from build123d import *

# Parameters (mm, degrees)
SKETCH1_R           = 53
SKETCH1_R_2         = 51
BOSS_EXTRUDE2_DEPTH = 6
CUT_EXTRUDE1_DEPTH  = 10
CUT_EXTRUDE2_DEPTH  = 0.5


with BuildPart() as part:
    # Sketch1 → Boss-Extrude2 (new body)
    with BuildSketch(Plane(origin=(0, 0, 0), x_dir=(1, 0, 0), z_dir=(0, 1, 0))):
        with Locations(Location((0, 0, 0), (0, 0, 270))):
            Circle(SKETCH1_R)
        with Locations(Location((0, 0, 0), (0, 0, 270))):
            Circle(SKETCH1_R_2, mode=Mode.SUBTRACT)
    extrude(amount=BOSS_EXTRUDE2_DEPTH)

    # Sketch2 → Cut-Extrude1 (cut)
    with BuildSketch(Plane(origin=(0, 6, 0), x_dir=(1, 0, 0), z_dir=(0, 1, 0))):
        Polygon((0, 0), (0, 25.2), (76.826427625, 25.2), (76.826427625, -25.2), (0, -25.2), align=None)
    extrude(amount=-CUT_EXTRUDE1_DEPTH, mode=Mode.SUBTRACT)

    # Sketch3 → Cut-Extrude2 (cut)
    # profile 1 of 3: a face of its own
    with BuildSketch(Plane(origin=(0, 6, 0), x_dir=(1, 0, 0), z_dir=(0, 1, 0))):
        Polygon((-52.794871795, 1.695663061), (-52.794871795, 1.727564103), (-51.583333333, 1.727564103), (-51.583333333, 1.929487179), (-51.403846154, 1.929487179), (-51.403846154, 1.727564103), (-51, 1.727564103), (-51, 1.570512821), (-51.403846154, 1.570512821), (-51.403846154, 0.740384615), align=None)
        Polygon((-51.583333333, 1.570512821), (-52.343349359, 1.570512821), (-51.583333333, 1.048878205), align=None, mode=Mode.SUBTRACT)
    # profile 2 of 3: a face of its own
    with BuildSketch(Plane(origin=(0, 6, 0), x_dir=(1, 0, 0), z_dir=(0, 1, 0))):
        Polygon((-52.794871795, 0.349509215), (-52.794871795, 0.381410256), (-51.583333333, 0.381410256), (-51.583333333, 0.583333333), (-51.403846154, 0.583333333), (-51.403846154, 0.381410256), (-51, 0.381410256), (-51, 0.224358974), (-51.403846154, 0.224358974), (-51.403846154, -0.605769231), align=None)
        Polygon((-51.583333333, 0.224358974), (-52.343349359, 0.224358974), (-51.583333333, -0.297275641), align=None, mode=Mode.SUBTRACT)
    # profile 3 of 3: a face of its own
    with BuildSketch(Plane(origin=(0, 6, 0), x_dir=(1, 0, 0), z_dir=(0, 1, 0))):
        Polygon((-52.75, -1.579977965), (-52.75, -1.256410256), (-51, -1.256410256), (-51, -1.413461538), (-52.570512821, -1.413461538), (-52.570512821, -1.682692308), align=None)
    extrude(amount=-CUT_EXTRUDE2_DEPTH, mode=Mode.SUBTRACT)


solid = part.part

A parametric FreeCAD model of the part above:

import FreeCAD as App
import Part
import Sketcher
from FreeCAD import Vector
Q = App.Units.Quantity

doc = App.newDocument("Part")
body = doc.addObject("PartDesign::Body", "Body")

sketch1 = body.newObject("Sketcher::SketchObject", "Sketch")
sketch1.AttachmentSupport = (doc.getObject("XZ_Plane"), [""])
sketch1.MapMode = "FlatFace"
sketch1.addGeometry([
    Part.Circle(Vector(0, 0, 0), Vector(0, 0, 1), 53),
    Part.Circle(Vector(0, 0, 0), Vector(0, 0, 1), 51),
], False)
sketch1.addConstraint([
    Sketcher.Constraint("Coincident", 0, 3, -1, 1),
    Sketcher.Constraint("Coincident", 1, 3, -1, 1),
    Sketcher.Constraint("Diameter", 0, Q("106 mm")),
    Sketcher.Constraint("Diameter", 1, Q("102 mm")),
])
pad1 = body.newObject("PartDesign::Pad", "Pad")
pad1.Profile = sketch1
pad1.Length = 6
pad1.Reversed = True

sketch2 = body.newObject("Sketcher::SketchObject", "Sketch001")
sketch2.AttachmentSupport = (doc.getObject("XZ_Plane"), [""])
sketch2.MapMode = "FlatFace"
sketch2.AttachmentOffset = App.Placement(Vector(0, 0, -6), App.Rotation())
sketch2.addGeometry([
    Part.LineSegment(Vector(0, -25.2, 0), Vector(0, 25.2, 0)),
    Part.LineSegment(Vector(0, 25.2, 0), Vector(76.826428, 25.2, 0)),
    Part.LineSegment(Vector(76.826428, 25.2, 0), Vector(76.826428, -25.2, 0)),
    Part.LineSegment(Vector(76.826428, -25.2, 0), Vector(0, -25.2, 0)),
], False)
sketch2.addConstraint([
    Sketcher.Constraint("Coincident", 0, 2, 1, 1),
    Sketcher.Constraint("Coincident", 1, 2, 2, 1),
    Sketcher.Constraint("Coincident", 2, 2, 3, 1),
    Sketcher.Constraint("Coincident", 3, 2, 0, 1),
    Sketcher.Constraint("Vertical", 0),
    Sketcher.Constraint("Horizontal", 1),
    Sketcher.Constraint("Vertical", 2),
    Sketcher.Constraint("Horizontal", 3),
    Sketcher.Constraint("Symmetric", 0, 2, 3, 2, -1, 1),
    Sketcher.Constraint("DistanceY", 0, 1, 0, 2, Q("50.4 mm")),
    Sketcher.Constraint("DistanceX", 1, 1, 1, 2, Q("76.826428 mm")),
])
pocket1 = body.newObject("PartDesign::Pocket", "Pocket")
pocket1.Profile = sketch2
pocket1.Length = 10
pocket1.Reversed = True

sketch3 = body.newObject("Sketcher::SketchObject", "Sketch002")
sketch3.AttachmentSupport = (doc.getObject("XZ_Plane"), [""])
sketch3.MapMode = "FlatFace"
sketch3.AttachmentOffset = App.Placement(Vector(0, 0, -6), App.Rotation())
sketch3.addGeometry([
    Part.LineSegment(Vector(-52.794872, -1.727564, 0), Vector(-52.794872, -1.695663, 0)),
    Part.LineSegment(Vector(-52.794872, -1.695663, 0), Vector(-51.403846, -0.740385, 0)),
    Part.LineSegment(Vector(-51.403846, -0.740385, 0), Vector(-51.403846, -1.570513, 0)),
    Part.LineSegment(Vector(-51.403846, -1.570513, 0), Vector(-51, -1.570513, 0)),
    Part.LineSegment(Vector(-51, -1.570513, 0), Vector(-51, -1.727564, 0)),
    Part.LineSegment(Vector(-51, -1.727564, 0), Vector(-51.403846, -1.727564, 0)),
    Part.LineSegment(Vector(-51.403846, -1.727564, 0), Vector(-51.403846, -1.929487, 0)),
    Part.LineSegment(Vector(-51.403846, -1.929487, 0), Vector(-51.583333, -1.929487, 0)),
    Part.LineSegment(Vector(-51.583333, -1.929487, 0), Vector(-51.583333, -1.727564, 0)),
    Part.LineSegment(Vector(-51.583333, -1.727564, 0), Vector(-52.794872, -1.727564, 0)),
    Part.LineSegment(Vector(-51.583333, -1.570513, 0), Vector(-51.583333, -1.048878, 0)),
    Part.LineSegment(Vector(-51.583333, -1.048878, 0), Vector(-52.343349, -1.570513, 0)),
    Part.LineSegment(Vector(-52.343349, -1.570513, 0), Vector(-51.583333, -1.570513, 0)),
    Part.LineSegment(Vector(-52.794872, -0.38141, 0), Vector(-52.794872, -0.349509, 0)),
    Part.LineSegment(Vector(-52.794872, -0.349509, 0), Vector(-51.403846, 0.605769, 0)),
    Part.LineSegment(Vector(-51.403846, 0.605769, 0), Vector(-51.403846, -0.224359, 0)),
    Part.LineSegment(Vector(-51.403846, -0.224359, 0), Vector(-51, -0.224359, 0)),
    Part.LineSegment(Vector(-51, -0.224359, 0), Vector(-51, -0.38141, 0)),
    Part.LineSegment(Vector(-51, -0.38141, 0), Vector(-51.403846, -0.38141, 0)),
    Part.LineSegment(Vector(-51.403846, -0.38141, 0), Vector(-51.403846, -0.583333, 0)),
    Part.LineSegment(Vector(-51.403846, -0.583333, 0), Vector(-51.583333, -0.583333, 0)),
    Part.LineSegment(Vector(-51.583333, -0.583333, 0), Vector(-51.583333, -0.38141, 0)),
    Part.LineSegment(Vector(-51.583333, -0.38141, 0), Vector(-52.794872, -0.38141, 0)),
    Part.LineSegment(Vector(-51.583333, -0.224359, 0), Vector(-51.583333, 0.297276, 0)),
    Part.LineSegment(Vector(-51.583333, 0.297276, 0), Vector(-52.343349, -0.224359, 0)),
    Part.LineSegment(Vector(-52.343349, -0.224359, 0), Vector(-51.583333, -0.224359, 0)),
    Part.LineSegment(Vector(-52.75, 1.25641, 0), Vector(-52.75, 1.579978, 0)),
    Part.LineSegment(Vector(-52.75, 1.579978, 0), Vector(-52.570513, 1.682692, 0)),
    Part.LineSegment(Vector(-52.570513, 1.682692, 0), Vector(-52.570513, 1.413462, 0)),
    Part.LineSegment(Vector(-52.570513, 1.413462, 0), Vector(-51, 1.413462, 0)),
    Part.LineSegment(Vector(-51, 1.413462, 0), Vector(-51, 1.25641, 0)),
    Part.LineSegment(Vector(-51, 1.25641, 0), Vector(-52.75, 1.25641, 0)),
], False)
sketch3.addConstraint([
    Sketcher.Constraint("Coincident", 0, 2, 1, 1),
    Sketcher.Constraint("Coincident", 1, 2, 2, 1),
    Sketcher.Constraint("Coincident", 2, 2, 3, 1),
    Sketcher.Constraint("Coincident", 3, 2, 4, 1),
    Sketcher.Constraint("Coincident", 4, 2, 5, 1),
    Sketcher.Constraint("Coincident", 5, 2, 6, 1),
    Sketcher.Constraint("Coincident", 6, 2, 7, 1),
    Sketcher.Constraint("Coincident", 7, 2, 8, 1),
    Sketcher.Constraint("Coincident", 8, 2, 9, 1),
    Sketcher.Constraint("Coincident", 9, 2, 0, 1),
    Sketcher.Constraint("Coincident", 10, 2, 11, 1),
    Sketcher.Constraint("Coincident", 11, 2, 12, 1),
    Sketcher.Constraint("Coincident", 12, 2, 10, 1),
    Sketcher.Constraint("Coincident", 13, 2, 14, 1),
    Sketcher.Constraint("Coincident", 14, 2, 15, 1),
    Sketcher.Constraint("Coincident", 15, 2, 16, 1),
    Sketcher.Constraint("Coincident", 16, 2, 17, 1),
    Sketcher.Constraint("Coincident", 17, 2, 18, 1),
    Sketcher.Constraint("Coincident", 18, 2, 19, 1),
    Sketcher.Constraint("Coincident", 19, 2, 20, 1),
    Sketcher.Constraint("Coincident", 20, 2, 21, 1),
    Sketcher.Constraint("Coincident", 21, 2, 22, 1),
    Sketcher.Constraint("Coincident", 22, 2, 13, 1),
    Sketcher.Constraint("Coincident", 23, 2, 24, 1),
    Sketcher.Constraint("Coincident", 24, 2, 25, 1),
    Sketcher.Constraint("Coincident", 25, 2, 23, 1),
    Sketcher.Constraint("Coincident", 26, 2, 27, 1),
    Sketcher.Constraint("Coincident", 27, 2, 28, 1),
    Sketcher.Constraint("Coincident", 28, 2, 29, 1),
    Sketcher.Constraint("Coincident", 29, 2, 30, 1),
    Sketcher.Constraint("Coincident", 30, 2, 31, 1),
    Sketcher.Constraint("Coincident", 31, 2, 26, 1),
    Sketcher.Constraint("Vertical", 0),
    Sketcher.Constraint("Vertical", 2),
    Sketcher.Constraint("Horizontal", 3),
    Sketcher.Constraint("Vertical", 4),
    Sketcher.Constraint("Horizontal", 5),
    Sketcher.Constraint("Vertical", 6),
    Sketcher.Constraint("Horizontal", 7),
    Sketcher.Constraint("Vertical", 8),
    Sketcher.Constraint("Horizontal", 9),
    Sketcher.Constraint("Vertical", 10),
    Sketcher.Constraint("Horizontal", 12),
    Sketcher.Constraint("Vertical", 13),
    Sketcher.Constraint("Vertical", 15),
    Sketcher.Constraint("Horizontal", 16),
    Sketcher.Constraint("Vertical", 17),
    Sketcher.Constraint("Horizontal", 18),
    Sketcher.Constraint("Vertical", 19),
    Sketcher.Constraint("Horizontal", 20),
    Sketcher.Constraint("Vertical", 21),
    Sketcher.Constraint("Horizontal", 22),
    Sketcher.Constraint("Vertical", 23),
    Sketcher.Constraint("Horizontal", 25),
    Sketcher.Constraint("Vertical", 26),
    Sketcher.Constraint("Vertical", 28),
    Sketcher.Constraint("Horizontal", 29),
    Sketcher.Constraint("Vertical", 30),
    Sketcher.Constraint("Horizontal", 31),
    Sketcher.Constraint("Parallel", 1, 14),
    Sketcher.Constraint("Parallel", 11, 24),
    Sketcher.Constraint("Horizontal", 5, 2, 8, 2),
    Sketcher.Constraint("Horizontal", 3, 2, 11, 2),
    Sketcher.Constraint("Horizontal", 18, 2, 21, 2),
    Sketcher.Constraint("Horizontal", 16, 2, 24, 2),
    Sketcher.Constraint("Vertical", 2, 2, 5, 2),
    Sketcher.Constraint("Vertical", 8, 2, 10, 2),
    Sketcher.Constraint("Vertical", 9, 2, 13, 2),
    Sketcher.Constraint("Vertical", 6, 2, 14, 2),
    Sketcher.Constraint("Vertical", 4, 2, 16, 2),
    Sketcher.Constraint("Vertical", 15, 2, 18, 2),
    Sketcher.Constraint("Vertical", 12, 2, 20, 2),
    Sketcher.Constraint("Vertical", 21, 2, 23, 2),
    Sketcher.Constraint("Vertical", 11, 2, 24, 2),
    Sketcher.Constraint("Vertical", 17, 2, 29, 2),
    Sketcher.Constraint("Equal", 0, 13),
    Sketcher.Constraint("Equal", 2, 15),
    Sketcher.Constraint("Equal", 8, 19),
    Sketcher.Constraint("Equal", 17, 30),
    Sketcher.Constraint("DistanceX", 3, 2, -1, 1, Q("51 mm")),
    Sketcher.Constraint("DistanceX", 31, 2, 31, 1, Q("1.75 mm")),
    Sketcher.Constraint("DistanceY", 0, 1, 0, 2, Q("0.031901 mm")),
    Sketcher.Constraint("Distance", 27, Q("0.206799 mm")),
    Sketcher.Constraint("DistanceX", 9, 2, 9, 1, Q("1.211538 mm")),
    Sketcher.Constraint("DistanceY", 2, 2, 2, 1, Q("0.830128 mm")),
    Sketcher.Constraint("DistanceY", 4, 2, 4, 1, Q("0.157051 mm")),
    Sketcher.Constraint("DistanceY", 28, 2, 28, 1, Q("0.269231 mm")),
    Sketcher.Constraint("DistanceY", 13, 2, 27, 2, Q("2.032202 mm")),
    Sketcher.Constraint("DistanceX", 3, 1, 3, 2, Q("0.403846 mm")),
    Sketcher.Constraint("DistanceX", 7, 2, 7, 1, Q("0.179487 mm")),
    Sketcher.Constraint("DistanceX", 12, 1, 12, 2, Q("0.760016 mm")),
    Sketcher.Constraint("DistanceX", 29, 1, 29, 2, Q("1.570513 mm")),
    Sketcher.Constraint("DistanceY", 6, 2, 6, 1, Q("0.201923 mm")),
    Sketcher.Constraint("DistanceY", 10, 1, 10, 2, Q("0.521635 mm")),
    Sketcher.Constraint("DistanceY", 10, 2, -1, 1, Q("1.048878 mm")),
    Sketcher.Constraint("DistanceY", 13, 2, -1, 1, Q("0.349509 mm")),
])
pocket2 = body.newObject("PartDesign::Pocket", "Pocket001")
pocket2.Profile = sketch3
pocket2.Length = 0.5
pocket2.Reversed = True

doc.recompute()
